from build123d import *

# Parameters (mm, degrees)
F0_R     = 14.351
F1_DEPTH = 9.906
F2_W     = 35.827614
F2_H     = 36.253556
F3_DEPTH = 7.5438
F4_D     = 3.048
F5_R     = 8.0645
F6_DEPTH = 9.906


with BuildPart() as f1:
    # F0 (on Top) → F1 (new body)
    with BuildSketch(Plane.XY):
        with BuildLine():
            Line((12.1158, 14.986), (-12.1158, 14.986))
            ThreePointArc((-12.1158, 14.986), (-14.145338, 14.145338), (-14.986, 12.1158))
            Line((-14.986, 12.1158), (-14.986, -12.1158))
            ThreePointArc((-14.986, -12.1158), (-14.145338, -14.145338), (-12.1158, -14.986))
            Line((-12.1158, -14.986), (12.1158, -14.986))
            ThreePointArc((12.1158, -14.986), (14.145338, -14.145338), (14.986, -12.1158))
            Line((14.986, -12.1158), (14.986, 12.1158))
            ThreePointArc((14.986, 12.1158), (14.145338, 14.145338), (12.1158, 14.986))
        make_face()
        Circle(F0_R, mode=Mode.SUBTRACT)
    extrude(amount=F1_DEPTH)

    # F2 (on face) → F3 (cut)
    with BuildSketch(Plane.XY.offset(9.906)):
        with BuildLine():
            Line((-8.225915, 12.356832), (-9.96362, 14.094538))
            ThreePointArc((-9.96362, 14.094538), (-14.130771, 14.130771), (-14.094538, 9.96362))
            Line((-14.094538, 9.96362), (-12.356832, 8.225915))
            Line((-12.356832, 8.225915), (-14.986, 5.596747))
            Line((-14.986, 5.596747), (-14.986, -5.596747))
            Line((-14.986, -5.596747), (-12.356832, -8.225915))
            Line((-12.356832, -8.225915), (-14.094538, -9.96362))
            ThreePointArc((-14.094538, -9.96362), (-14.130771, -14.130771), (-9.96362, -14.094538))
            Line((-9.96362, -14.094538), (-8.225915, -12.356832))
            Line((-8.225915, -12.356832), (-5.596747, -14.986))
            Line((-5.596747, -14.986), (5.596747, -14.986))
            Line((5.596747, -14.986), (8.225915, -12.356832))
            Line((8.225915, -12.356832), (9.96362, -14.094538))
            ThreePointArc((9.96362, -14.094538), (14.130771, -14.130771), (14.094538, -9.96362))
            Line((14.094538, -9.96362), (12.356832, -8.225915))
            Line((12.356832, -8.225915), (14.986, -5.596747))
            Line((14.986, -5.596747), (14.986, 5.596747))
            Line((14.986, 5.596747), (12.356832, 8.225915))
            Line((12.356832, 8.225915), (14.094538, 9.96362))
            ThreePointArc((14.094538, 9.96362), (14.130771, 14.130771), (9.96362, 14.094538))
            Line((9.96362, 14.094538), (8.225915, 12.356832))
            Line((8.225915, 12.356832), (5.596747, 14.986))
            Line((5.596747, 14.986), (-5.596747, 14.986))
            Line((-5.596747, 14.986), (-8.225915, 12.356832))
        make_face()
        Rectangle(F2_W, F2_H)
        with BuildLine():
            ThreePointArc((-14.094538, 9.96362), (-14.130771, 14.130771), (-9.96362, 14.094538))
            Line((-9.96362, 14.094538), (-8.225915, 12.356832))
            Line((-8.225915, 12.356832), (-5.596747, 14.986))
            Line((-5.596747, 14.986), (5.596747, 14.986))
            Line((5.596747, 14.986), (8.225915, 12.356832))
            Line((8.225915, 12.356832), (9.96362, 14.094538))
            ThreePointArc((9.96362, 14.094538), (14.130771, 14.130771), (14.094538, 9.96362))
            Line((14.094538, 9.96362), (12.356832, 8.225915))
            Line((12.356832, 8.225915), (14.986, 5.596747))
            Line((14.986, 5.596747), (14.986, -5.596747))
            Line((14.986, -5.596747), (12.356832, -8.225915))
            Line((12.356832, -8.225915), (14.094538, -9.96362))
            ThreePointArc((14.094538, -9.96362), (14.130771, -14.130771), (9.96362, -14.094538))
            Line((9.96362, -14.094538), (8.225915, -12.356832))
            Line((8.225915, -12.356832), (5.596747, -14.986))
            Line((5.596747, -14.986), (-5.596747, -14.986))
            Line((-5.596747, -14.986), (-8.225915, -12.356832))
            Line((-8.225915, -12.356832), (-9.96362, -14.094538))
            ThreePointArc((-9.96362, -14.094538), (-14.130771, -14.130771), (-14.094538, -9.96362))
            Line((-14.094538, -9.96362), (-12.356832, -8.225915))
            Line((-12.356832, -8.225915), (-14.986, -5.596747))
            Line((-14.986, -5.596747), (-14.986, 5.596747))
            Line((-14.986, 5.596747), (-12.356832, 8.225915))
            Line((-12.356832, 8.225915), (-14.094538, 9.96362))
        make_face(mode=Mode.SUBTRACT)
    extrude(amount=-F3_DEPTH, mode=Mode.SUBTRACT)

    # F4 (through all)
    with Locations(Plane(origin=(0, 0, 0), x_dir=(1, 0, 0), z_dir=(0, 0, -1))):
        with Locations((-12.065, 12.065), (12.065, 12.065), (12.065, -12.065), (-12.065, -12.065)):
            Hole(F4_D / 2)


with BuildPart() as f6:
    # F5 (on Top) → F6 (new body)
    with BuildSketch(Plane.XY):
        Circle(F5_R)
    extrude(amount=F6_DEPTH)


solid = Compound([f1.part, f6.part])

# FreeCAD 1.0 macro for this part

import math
import FreeCAD as App
import Part
import Sketcher
Q = App.Units.Quantity


def add_polygon(sketch, points):
    """Adds a closed chain of lines whose ends are joined by coincident constraints."""
    first, n = sketch.GeometryCount, len(points)
    for a, b in zip(points, points[1:] + points[:1]):
        sketch.addGeometry(Part.LineSegment(App.Vector(*a, 0), App.Vector(*b, 0)), False)
    for i in range(n):
        sketch.addConstraint(Sketcher.Constraint("Coincident", first + i, 2, first + (i + 1) % n, 1))

doc = App.newDocument("Part")
body = doc.addObject("PartDesign::Body", "Body")

# Sketch on XY plane
sketch1 = body.newObject("Sketcher::SketchObject", "Sketch")
sketch1.AttachmentSupport = (doc.getObject("XY_Plane"), [""])
sketch1.MapMode = "FlatFace"
sketch1.addGeometry([
    Part.LineSegment(App.Vector(12.1, 15, 0), App.Vector(-12.1, 15, 0)),  # 0
    Part.ArcOfCircle(Part.Circle(App.Vector(-12.1, 12.1, 0), App.Vector(0, 0, 1), 2.9), math.radians(90), math.radians(180)),  # 1
    Part.LineSegment(App.Vector(-15, 12.1, 0), App.Vector(-15, -12.1, 0)),  # 2
    Part.ArcOfCircle(Part.Circle(App.Vector(-12.1, -12.1, 0), App.Vector(0, 0, 1), 2.9), math.radians(180), math.radians(270)),  # 3
    Part.LineSegment(App.Vector(-12.1, -15, 0), App.Vector(12.1, -15, 0)),  # 4
    Part.ArcOfCircle(Part.Circle(App.Vector(12.1, -12.1, 0), App.Vector(0, 0, 1), 2.9), math.radians(-90), math.radians(0)),  # 5
    Part.LineSegment(App.Vector(15, -12.1, 0), App.Vector(15, 12.1, 0)),  # 6
    Part.ArcOfCircle(Part.Circle(App.Vector(12.1, 12.1, 0), App.Vector(0, 0, 1), 2.9), math.radians(0), math.radians(90)),  # 7
    Part.Circle(App.Vector(0, 0, 0), App.Vector(0, 0, 1), 14.4),  # 8
], False)
sketch1.addConstraint([
    Sketcher.Constraint("Tangent", 0, 2, 1, 1),
    Sketcher.Constraint("Tangent", 1, 2, 2, 1),
    Sketcher.Constraint("Tangent", 2, 2, 3, 1),
    Sketcher.Constraint("Tangent", 3, 2, 4, 1),
    Sketcher.Constraint("Tangent", 4, 2, 5, 1),
    Sketcher.Constraint("Tangent", 5, 2, 6, 1),
    Sketcher.Constraint("Tangent", 6, 2, 7, 1),
    Sketcher.Constraint("Tangent", 7, 2, 0, 1),
    Sketcher.Constraint("Horizontal", 0),
    Sketcher.Constraint("Vertical", 2),
    Sketcher.Constraint("Horizontal", 4),
    Sketcher.Constraint("Vertical", 6),
    Sketcher.Constraint("Coincident", 8, 3, -1, 1),
    Sketcher.Constraint("Equal", 1, 3),
    Sketcher.Constraint("Equal", 3, 5),
    Sketcher.Constraint("Equal", 5, 7),
    Sketcher.Constraint("Symmetric", 1, 3, 5, 3, -1, 1),
    Sketcher.Constraint("Equal", 4, 2),
    Sketcher.Constraint("Diameter", 8, Q("1.13 in")),
    Sketcher.Constraint("Radius", 1, Q("0.113 in")),
    Sketcher.Constraint("DistanceX", 0, 2, 0, 1, Q("0.954 in")),
])
pad1 = body.newObject("PartDesign::Pad", "Pad")
pad1.Profile = sketch1
pad1.Length = Q("0.39 in")

# Sketch on XY plane
sketch2 = body.newObject("Sketcher::SketchObject", "Sketch001")
sketch2.AttachmentSupport = (doc.getObject("XY_Plane"), [""])
sketch2.MapMode = "FlatFace"
sketch2.AttachmentOffset = App.Placement(App.Vector(0, 0, 0.39 * 25.4), App.Rotation())
add_polygon(sketch2, [(-17.913807, 18.126778), (-17.913807, -18.126778), (17.913807, -18.126778), (17.913807, 18.126778)])  # lines 0-3
sketch2.addGeometry(Part.LineSegment(App.Vector(-12.356832, 8.225915, 0), App.Vector(-14.094538, 9.96362, 0)), False)  # 4
sketch2.addGeometry(Part.ArcOfCircle(Part.Circle(App.Vector(-12.065, 12.065, 0), App.Vector(0, 0, 1), 2.921442), math.radians(44.003662), math.radians(225.996338)), False)  # 5
sketch2.addGeometry(Part.LineSegment(App.Vector(-9.96362, 14.094538, 0), App.Vector(-8.225915, 12.356832, 0)), False)  # 6
sketch2.addGeometry(Part.LineSegment(App.Vector(-8.225915, 12.356832, 0), App.Vector(-5.596747, 14.986, 0)), False)  # 7
sketch2.addGeometry(Part.LineSegment(App.Vector(-5.596747, 14.986, 0), App.Vector(5.596747, 14.986, 0)), False)  # 8
sketch2.addGeometry(Part.LineSegment(App.Vector(5.596747, 14.986, 0), App.Vector(8.225915, 12.356832, 0)), False)  # 9
sketch2.addGeometry(Part.LineSegment(App.Vector(8.225915, 12.356832, 0), App.Vector(9.96362, 14.094538, 0)), False)  # 10
sketch2.addGeometry(Part.ArcOfCircle(Part.Circle(App.Vector(12.065, 12.065, 0), App.Vector(0, 0, 1), 2.921442), math.radians(-45.996338), math.radians(135.996338)), False)  # 11
sketch2.addGeometry(Part.LineSegment(App.Vector(14.094538, 9.96362, 0), App.Vector(12.356832, 8.225915, 0)), False)  # 12
sketch2.addGeometry(Part.LineSegment(App.Vector(12.356832, 8.225915, 0), App.Vector(14.986, 5.596747, 0)), False)  # 13
sketch2.addGeometry(Part.LineSegment(App.Vector(14.986, 5.596747, 0), App.Vector(14.986, -5.596747, 0)), False)  # 14
sketch2.addGeometry(Part.LineSegment(App.Vector(14.986, -5.596747, 0), App.Vector(12.356832, -8.225915, 0)), False)  # 15
sketch2.addGeometry(Part.LineSegment(App.Vector(12.356832, -8.225915, 0), App.Vector(14.094538, -9.96362, 0)), False)  # 16
sketch2.addGeometry(Part.ArcOfCircle(Part.Circle(App.Vector(12.065, -12.065, 0), App.Vector(0, 0, 1), 2.921442), math.radians(-135.996338), math.radians(45.996338)), False)  # 17
sketch2.addGeometry(Part.LineSegment(App.Vector(9.96362, -14.094538, 0), App.Vector(8.225915, -12.356832, 0)), False)  # 18
sketch2.addGeometry(Part.LineSegment(App.Vector(8.225915, -12.356832, 0), App.Vector(5.596747, -14.986, 0)), False)  # 19
sketch2.addGeometry(Part.LineSegment(App.Vector(5.596747, -14.986, 0), App.Vector(-5.596747, -14.986, 0)), False)  # 20
sketch2.addGeometry(Part.LineSegment(App.Vector(-5.596747, -14.986, 0), App.Vector(-8.225915, -12.356832, 0)), False)  # 21
sketch2.addGeometry(Part.LineSegment(App.Vector(-8.225915, -12.356832, 0), App.Vector(-9.96362, -14.094538, 0)), False)  # 22
sketch2.addGeometry(Part.ArcOfCircle(Part.Circle(App.Vector(-12.065, -12.065, 0), App.Vector(0, 0, 1), 2.921442), math.radians(134.003662), math.radians(315.996338)), False)  # 23
sketch2.addGeometry(Part.LineSegment(App.Vector(-14.094538, -9.96362, 0), App.Vector(-12.356832, -8.225915, 0)), False)  # 24
sketch2.addGeometry(Part.LineSegment(App.Vector(-12.356832, -8.225915, 0), App.Vector(-14.986, -5.596747, 0)), False)  # 25
sketch2.addGeometry(Part.LineSegment(App.Vector(-14.986, -5.596747, 0), App.Vector(-14.986, 5.596747, 0)), False)  # 26
sketch2.addGeometry(Part.LineSegment(App.Vector(-14.986, 5.596747, 0), App.Vector(-12.356832, 8.225915, 0)), False)  # 27
sketch2.addConstraint([
    Sketcher.Constraint("Coincident", 4, 2, 5, 2),
    Sketcher.Constraint("Coincident", 5, 1, 6, 1),
    Sketcher.Constraint("Coincident", 6, 2, 7, 1),
    Sketcher.Constraint("Coincident", 7, 2, 8, 1),
    Sketcher.Constraint("Coincident", 8, 2, 9, 1),
    Sketcher.Constraint("Coincident", 9, 2, 10, 1),
    Sketcher.Constraint("Coincident", 10, 2, 11, 2),
    Sketcher.Constraint("Coincident", 11, 1, 12, 1),
    Sketcher.Constraint("Coincident", 12, 2, 13, 1),
    Sketcher.Constraint("Coincident", 13, 2, 14, 1),
    Sketcher.Constraint("Coincident", 14, 2, 15, 1),
    Sketcher.Constraint("Coincident", 15, 2, 16, 1),
    Sketcher.Constraint("Coincident", 16, 2, 17, 2),
    Sketcher.Constraint("Coincident", 17, 1, 18, 1),
    Sketcher.Constraint("Coincident", 18, 2, 19, 1),
    Sketcher.Constraint("Coincident", 19, 2, 20, 1),
    Sketcher.Constraint("Coincident", 20, 2, 21, 1),
    Sketcher.Constraint("Coincident", 21, 2, 22, 1),
    Sketcher.Constraint("Coincident", 22, 2, 23, 2),
    Sketcher.Constraint("Coincident", 23, 1, 24, 1),
    Sketcher.Constraint("Coincident", 24, 2, 25, 1),
    Sketcher.Constraint("Coincident", 25, 2, 26, 1),
    Sketcher.Constraint("Coincident", 26, 2, 27, 1),
    Sketcher.Constraint("Coincident", 27, 2, 4, 1),
    Sketcher.Constraint("Vertical", 0),
    Sketcher.Constraint("Horizontal", 1),
    Sketcher.Constraint("Vertical", 2),
    Sketcher.Constraint("Horizontal", 3),
    Sketcher.Constraint("Horizontal", 8),
    Sketcher.Constraint("Vertical", 14),
    Sketcher.Constraint("Horizontal", 20),
    Sketcher.Constraint("Vertical", 26),
    Sketcher.Constraint("Equal", 5, 11),
    Sketcher.Constraint("Equal", 11, 17),
    Sketcher.Constraint("Equal", 17, 23),
    Sketcher.Constraint("Symmetric", 5, 3, 17, 3, -1, 1),
    Sketcher.Constraint("Symmetric", 11, 3, 23, 3, -1, 1),
    Sketcher.Constraint("Symmetric", 0, 2, 2, 2, -1, 1),
    Sketcher.Constraint("Symmetric", 6, 2, 18, 2, -1, 1),
    Sketcher.Constraint("Symmetric", 7, 2, 19, 2, -1, 1),
    Sketcher.Constraint("Symmetric", 9, 2, 21, 2, -1, 1),
    Sketcher.Constraint("Symmetric", 12, 2, 24, 2, -1, 1),
    Sketcher.Constraint("Symmetric", 13, 2, 25, 2, -1, 1),
    Sketcher.Constraint("Symmetric", 15, 2, 27, 2, -1, 1),
    Sketcher.Constraint("Symmetric", 5, 3, 11, 3, -2),
    Sketcher.Constraint("Symmetric", 6, 2, 9, 2, -2),
    Sketcher.Constraint("Symmetric", 15, 2, 24, 2, -2),
    Sketcher.Constraint("Parallel", 4, 6),
    Sketcher.Constraint("Perpendicular", 6, 7),
    Sketcher.Constraint("Perpendicular", 7, 9),
    Sketcher.Constraint("Perpendicular", 9, 10),
    Sketcher.Constraint("Parallel", 10, 12),
    Sketcher.Constraint("Perpendicular", 12, 13),
    Sketcher.Constraint("Perpendicular", 13, 15),
    Sketcher.Constraint("Perpendicular", 15, 16),
    Sketcher.Constraint("Parallel", 16, 18),
    Sketcher.Constraint("Perpendicular", 19, 21),
    Sketcher.Constraint("Perpendicular", 21, 22),
    Sketcher.Constraint("Parallel", 22, 24),
    Sketcher.Constraint("Perpendicular", 25, 27),
    Sketcher.Constraint("Horizontal", 5, 1, 10, 2),
    Sketcher.Constraint("Equal", 20, 14),
    Sketcher.Constraint("Equal", 4, 6),
    Sketcher.Constraint("Equal", 9, 13),
    Sketcher.Constraint("DistanceY", -1, 1, 7, 2, Q("0.59 in")),
    Sketcher.Constraint("DistanceX", -1, 1, 13, 2, Q("0.59 in")),
    Sketcher.Constraint("DistanceX", 5, 3, 11, 3, Q("0.95 in")),
    Sketcher.Constraint("Radius", 5, Q("2.921442 mm")),
    Sketcher.Constraint("DistanceY", 0, 2, 4, 2, Q("28.090398 mm")),
    Sketcher.Constraint("DistanceX", 1, 1, 1, 2, Q("35.827614 mm")),
    Sketcher.Constraint("DistanceX", 8, 1, 8, 2, Q("11.193494 mm")),
    Sketcher.Constraint("DistanceY", 0, 2, 0, 1, Q("36.253556 mm")),
])
pocket1 = body.newObject("PartDesign::Pocket", "Pocket")
pocket1.Profile = sketch2
pocket1.Length = Q("0.297 in")

# Sketch on XY plane
sketch3 = body.newObject("Sketcher::SketchObject", "Sketch002")
sketch3.AttachmentSupport = (doc.getObject("XY_Plane"), [""])
sketch3.MapMode = "FlatFace"
sketch3.addGeometry([
    Part.Circle(App.Vector(-12.1, -12.1, 0), App.Vector(0, 0, 1), 1.5),
    Part.Circle(App.Vector(12.1, -12.1, 0), App.Vector(0, 0, 1), 1.5),
    Part.Circle(App.Vector(12.1, 12.1, 0), App.Vector(0, 0, 1), 1.5),
    Part.Circle(App.Vector(-12.1, 12.1, 0), App.Vector(0, 0, 1), 1.5),
], False)
sketch3.addConstraint([
    Sketcher.Constraint("Equal", 0, 1),
    Sketcher.Constraint("Equal", 1, 2),
    Sketcher.Constraint("Equal", 2, 3),
    Sketcher.Constraint("Symmetric", 0, 3, 2, 3, -1, 1),
    Sketcher.Constraint("Symmetric", 1, 3, 3, 3, -1, 1),
    Sketcher.Constraint("Symmetric", 0, 3, 1, 3, -2),
    Sketcher.Constraint("Diameter", 0, Q("0.12 in")),
    Sketcher.Constraint("DistanceX", 0, 3, 1, 3, Q("0.95 in")),
    Sketcher.Constraint("DistanceY", 1, 3, 2, 3, Q("0.95 in")),
])
doc.recompute()
hole = body.newObject("PartDesign::Hole", "Hole")
hole.Profile = sketch3
hole.ThreadType = "None"
hole.Diameter = Q("0.12 in")
hole.DepthType = "ThroughAll"
hole.Reversed = True
body2 = doc.addObject("PartDesign::Body", "Body001")

# Sketch on XY plane
sketch4 = body2.newObject("Sketcher::SketchObject", "Sketch003")
sketch4.AttachmentSupport = (doc.getObject("XY_Plane001"), [""])
sketch4.MapMode = "FlatFace"
sketch4.addGeometry(Part.Circle(App.Vector(0, 0, 0), App.Vector(0, 0, 1), 8), False)
sketch4.addConstraint([
    Sketcher.Constraint("Coincident", 0, 3, -1, 1),
    Sketcher.Constraint("Diameter", 0, Q("0.635 in")),
])
pad2 = body2.newObject("PartDesign::Pad", "Pad001")
pad2.Profile = sketch4
pad2.Length = Q("0.39 in")

doc.recompute()
